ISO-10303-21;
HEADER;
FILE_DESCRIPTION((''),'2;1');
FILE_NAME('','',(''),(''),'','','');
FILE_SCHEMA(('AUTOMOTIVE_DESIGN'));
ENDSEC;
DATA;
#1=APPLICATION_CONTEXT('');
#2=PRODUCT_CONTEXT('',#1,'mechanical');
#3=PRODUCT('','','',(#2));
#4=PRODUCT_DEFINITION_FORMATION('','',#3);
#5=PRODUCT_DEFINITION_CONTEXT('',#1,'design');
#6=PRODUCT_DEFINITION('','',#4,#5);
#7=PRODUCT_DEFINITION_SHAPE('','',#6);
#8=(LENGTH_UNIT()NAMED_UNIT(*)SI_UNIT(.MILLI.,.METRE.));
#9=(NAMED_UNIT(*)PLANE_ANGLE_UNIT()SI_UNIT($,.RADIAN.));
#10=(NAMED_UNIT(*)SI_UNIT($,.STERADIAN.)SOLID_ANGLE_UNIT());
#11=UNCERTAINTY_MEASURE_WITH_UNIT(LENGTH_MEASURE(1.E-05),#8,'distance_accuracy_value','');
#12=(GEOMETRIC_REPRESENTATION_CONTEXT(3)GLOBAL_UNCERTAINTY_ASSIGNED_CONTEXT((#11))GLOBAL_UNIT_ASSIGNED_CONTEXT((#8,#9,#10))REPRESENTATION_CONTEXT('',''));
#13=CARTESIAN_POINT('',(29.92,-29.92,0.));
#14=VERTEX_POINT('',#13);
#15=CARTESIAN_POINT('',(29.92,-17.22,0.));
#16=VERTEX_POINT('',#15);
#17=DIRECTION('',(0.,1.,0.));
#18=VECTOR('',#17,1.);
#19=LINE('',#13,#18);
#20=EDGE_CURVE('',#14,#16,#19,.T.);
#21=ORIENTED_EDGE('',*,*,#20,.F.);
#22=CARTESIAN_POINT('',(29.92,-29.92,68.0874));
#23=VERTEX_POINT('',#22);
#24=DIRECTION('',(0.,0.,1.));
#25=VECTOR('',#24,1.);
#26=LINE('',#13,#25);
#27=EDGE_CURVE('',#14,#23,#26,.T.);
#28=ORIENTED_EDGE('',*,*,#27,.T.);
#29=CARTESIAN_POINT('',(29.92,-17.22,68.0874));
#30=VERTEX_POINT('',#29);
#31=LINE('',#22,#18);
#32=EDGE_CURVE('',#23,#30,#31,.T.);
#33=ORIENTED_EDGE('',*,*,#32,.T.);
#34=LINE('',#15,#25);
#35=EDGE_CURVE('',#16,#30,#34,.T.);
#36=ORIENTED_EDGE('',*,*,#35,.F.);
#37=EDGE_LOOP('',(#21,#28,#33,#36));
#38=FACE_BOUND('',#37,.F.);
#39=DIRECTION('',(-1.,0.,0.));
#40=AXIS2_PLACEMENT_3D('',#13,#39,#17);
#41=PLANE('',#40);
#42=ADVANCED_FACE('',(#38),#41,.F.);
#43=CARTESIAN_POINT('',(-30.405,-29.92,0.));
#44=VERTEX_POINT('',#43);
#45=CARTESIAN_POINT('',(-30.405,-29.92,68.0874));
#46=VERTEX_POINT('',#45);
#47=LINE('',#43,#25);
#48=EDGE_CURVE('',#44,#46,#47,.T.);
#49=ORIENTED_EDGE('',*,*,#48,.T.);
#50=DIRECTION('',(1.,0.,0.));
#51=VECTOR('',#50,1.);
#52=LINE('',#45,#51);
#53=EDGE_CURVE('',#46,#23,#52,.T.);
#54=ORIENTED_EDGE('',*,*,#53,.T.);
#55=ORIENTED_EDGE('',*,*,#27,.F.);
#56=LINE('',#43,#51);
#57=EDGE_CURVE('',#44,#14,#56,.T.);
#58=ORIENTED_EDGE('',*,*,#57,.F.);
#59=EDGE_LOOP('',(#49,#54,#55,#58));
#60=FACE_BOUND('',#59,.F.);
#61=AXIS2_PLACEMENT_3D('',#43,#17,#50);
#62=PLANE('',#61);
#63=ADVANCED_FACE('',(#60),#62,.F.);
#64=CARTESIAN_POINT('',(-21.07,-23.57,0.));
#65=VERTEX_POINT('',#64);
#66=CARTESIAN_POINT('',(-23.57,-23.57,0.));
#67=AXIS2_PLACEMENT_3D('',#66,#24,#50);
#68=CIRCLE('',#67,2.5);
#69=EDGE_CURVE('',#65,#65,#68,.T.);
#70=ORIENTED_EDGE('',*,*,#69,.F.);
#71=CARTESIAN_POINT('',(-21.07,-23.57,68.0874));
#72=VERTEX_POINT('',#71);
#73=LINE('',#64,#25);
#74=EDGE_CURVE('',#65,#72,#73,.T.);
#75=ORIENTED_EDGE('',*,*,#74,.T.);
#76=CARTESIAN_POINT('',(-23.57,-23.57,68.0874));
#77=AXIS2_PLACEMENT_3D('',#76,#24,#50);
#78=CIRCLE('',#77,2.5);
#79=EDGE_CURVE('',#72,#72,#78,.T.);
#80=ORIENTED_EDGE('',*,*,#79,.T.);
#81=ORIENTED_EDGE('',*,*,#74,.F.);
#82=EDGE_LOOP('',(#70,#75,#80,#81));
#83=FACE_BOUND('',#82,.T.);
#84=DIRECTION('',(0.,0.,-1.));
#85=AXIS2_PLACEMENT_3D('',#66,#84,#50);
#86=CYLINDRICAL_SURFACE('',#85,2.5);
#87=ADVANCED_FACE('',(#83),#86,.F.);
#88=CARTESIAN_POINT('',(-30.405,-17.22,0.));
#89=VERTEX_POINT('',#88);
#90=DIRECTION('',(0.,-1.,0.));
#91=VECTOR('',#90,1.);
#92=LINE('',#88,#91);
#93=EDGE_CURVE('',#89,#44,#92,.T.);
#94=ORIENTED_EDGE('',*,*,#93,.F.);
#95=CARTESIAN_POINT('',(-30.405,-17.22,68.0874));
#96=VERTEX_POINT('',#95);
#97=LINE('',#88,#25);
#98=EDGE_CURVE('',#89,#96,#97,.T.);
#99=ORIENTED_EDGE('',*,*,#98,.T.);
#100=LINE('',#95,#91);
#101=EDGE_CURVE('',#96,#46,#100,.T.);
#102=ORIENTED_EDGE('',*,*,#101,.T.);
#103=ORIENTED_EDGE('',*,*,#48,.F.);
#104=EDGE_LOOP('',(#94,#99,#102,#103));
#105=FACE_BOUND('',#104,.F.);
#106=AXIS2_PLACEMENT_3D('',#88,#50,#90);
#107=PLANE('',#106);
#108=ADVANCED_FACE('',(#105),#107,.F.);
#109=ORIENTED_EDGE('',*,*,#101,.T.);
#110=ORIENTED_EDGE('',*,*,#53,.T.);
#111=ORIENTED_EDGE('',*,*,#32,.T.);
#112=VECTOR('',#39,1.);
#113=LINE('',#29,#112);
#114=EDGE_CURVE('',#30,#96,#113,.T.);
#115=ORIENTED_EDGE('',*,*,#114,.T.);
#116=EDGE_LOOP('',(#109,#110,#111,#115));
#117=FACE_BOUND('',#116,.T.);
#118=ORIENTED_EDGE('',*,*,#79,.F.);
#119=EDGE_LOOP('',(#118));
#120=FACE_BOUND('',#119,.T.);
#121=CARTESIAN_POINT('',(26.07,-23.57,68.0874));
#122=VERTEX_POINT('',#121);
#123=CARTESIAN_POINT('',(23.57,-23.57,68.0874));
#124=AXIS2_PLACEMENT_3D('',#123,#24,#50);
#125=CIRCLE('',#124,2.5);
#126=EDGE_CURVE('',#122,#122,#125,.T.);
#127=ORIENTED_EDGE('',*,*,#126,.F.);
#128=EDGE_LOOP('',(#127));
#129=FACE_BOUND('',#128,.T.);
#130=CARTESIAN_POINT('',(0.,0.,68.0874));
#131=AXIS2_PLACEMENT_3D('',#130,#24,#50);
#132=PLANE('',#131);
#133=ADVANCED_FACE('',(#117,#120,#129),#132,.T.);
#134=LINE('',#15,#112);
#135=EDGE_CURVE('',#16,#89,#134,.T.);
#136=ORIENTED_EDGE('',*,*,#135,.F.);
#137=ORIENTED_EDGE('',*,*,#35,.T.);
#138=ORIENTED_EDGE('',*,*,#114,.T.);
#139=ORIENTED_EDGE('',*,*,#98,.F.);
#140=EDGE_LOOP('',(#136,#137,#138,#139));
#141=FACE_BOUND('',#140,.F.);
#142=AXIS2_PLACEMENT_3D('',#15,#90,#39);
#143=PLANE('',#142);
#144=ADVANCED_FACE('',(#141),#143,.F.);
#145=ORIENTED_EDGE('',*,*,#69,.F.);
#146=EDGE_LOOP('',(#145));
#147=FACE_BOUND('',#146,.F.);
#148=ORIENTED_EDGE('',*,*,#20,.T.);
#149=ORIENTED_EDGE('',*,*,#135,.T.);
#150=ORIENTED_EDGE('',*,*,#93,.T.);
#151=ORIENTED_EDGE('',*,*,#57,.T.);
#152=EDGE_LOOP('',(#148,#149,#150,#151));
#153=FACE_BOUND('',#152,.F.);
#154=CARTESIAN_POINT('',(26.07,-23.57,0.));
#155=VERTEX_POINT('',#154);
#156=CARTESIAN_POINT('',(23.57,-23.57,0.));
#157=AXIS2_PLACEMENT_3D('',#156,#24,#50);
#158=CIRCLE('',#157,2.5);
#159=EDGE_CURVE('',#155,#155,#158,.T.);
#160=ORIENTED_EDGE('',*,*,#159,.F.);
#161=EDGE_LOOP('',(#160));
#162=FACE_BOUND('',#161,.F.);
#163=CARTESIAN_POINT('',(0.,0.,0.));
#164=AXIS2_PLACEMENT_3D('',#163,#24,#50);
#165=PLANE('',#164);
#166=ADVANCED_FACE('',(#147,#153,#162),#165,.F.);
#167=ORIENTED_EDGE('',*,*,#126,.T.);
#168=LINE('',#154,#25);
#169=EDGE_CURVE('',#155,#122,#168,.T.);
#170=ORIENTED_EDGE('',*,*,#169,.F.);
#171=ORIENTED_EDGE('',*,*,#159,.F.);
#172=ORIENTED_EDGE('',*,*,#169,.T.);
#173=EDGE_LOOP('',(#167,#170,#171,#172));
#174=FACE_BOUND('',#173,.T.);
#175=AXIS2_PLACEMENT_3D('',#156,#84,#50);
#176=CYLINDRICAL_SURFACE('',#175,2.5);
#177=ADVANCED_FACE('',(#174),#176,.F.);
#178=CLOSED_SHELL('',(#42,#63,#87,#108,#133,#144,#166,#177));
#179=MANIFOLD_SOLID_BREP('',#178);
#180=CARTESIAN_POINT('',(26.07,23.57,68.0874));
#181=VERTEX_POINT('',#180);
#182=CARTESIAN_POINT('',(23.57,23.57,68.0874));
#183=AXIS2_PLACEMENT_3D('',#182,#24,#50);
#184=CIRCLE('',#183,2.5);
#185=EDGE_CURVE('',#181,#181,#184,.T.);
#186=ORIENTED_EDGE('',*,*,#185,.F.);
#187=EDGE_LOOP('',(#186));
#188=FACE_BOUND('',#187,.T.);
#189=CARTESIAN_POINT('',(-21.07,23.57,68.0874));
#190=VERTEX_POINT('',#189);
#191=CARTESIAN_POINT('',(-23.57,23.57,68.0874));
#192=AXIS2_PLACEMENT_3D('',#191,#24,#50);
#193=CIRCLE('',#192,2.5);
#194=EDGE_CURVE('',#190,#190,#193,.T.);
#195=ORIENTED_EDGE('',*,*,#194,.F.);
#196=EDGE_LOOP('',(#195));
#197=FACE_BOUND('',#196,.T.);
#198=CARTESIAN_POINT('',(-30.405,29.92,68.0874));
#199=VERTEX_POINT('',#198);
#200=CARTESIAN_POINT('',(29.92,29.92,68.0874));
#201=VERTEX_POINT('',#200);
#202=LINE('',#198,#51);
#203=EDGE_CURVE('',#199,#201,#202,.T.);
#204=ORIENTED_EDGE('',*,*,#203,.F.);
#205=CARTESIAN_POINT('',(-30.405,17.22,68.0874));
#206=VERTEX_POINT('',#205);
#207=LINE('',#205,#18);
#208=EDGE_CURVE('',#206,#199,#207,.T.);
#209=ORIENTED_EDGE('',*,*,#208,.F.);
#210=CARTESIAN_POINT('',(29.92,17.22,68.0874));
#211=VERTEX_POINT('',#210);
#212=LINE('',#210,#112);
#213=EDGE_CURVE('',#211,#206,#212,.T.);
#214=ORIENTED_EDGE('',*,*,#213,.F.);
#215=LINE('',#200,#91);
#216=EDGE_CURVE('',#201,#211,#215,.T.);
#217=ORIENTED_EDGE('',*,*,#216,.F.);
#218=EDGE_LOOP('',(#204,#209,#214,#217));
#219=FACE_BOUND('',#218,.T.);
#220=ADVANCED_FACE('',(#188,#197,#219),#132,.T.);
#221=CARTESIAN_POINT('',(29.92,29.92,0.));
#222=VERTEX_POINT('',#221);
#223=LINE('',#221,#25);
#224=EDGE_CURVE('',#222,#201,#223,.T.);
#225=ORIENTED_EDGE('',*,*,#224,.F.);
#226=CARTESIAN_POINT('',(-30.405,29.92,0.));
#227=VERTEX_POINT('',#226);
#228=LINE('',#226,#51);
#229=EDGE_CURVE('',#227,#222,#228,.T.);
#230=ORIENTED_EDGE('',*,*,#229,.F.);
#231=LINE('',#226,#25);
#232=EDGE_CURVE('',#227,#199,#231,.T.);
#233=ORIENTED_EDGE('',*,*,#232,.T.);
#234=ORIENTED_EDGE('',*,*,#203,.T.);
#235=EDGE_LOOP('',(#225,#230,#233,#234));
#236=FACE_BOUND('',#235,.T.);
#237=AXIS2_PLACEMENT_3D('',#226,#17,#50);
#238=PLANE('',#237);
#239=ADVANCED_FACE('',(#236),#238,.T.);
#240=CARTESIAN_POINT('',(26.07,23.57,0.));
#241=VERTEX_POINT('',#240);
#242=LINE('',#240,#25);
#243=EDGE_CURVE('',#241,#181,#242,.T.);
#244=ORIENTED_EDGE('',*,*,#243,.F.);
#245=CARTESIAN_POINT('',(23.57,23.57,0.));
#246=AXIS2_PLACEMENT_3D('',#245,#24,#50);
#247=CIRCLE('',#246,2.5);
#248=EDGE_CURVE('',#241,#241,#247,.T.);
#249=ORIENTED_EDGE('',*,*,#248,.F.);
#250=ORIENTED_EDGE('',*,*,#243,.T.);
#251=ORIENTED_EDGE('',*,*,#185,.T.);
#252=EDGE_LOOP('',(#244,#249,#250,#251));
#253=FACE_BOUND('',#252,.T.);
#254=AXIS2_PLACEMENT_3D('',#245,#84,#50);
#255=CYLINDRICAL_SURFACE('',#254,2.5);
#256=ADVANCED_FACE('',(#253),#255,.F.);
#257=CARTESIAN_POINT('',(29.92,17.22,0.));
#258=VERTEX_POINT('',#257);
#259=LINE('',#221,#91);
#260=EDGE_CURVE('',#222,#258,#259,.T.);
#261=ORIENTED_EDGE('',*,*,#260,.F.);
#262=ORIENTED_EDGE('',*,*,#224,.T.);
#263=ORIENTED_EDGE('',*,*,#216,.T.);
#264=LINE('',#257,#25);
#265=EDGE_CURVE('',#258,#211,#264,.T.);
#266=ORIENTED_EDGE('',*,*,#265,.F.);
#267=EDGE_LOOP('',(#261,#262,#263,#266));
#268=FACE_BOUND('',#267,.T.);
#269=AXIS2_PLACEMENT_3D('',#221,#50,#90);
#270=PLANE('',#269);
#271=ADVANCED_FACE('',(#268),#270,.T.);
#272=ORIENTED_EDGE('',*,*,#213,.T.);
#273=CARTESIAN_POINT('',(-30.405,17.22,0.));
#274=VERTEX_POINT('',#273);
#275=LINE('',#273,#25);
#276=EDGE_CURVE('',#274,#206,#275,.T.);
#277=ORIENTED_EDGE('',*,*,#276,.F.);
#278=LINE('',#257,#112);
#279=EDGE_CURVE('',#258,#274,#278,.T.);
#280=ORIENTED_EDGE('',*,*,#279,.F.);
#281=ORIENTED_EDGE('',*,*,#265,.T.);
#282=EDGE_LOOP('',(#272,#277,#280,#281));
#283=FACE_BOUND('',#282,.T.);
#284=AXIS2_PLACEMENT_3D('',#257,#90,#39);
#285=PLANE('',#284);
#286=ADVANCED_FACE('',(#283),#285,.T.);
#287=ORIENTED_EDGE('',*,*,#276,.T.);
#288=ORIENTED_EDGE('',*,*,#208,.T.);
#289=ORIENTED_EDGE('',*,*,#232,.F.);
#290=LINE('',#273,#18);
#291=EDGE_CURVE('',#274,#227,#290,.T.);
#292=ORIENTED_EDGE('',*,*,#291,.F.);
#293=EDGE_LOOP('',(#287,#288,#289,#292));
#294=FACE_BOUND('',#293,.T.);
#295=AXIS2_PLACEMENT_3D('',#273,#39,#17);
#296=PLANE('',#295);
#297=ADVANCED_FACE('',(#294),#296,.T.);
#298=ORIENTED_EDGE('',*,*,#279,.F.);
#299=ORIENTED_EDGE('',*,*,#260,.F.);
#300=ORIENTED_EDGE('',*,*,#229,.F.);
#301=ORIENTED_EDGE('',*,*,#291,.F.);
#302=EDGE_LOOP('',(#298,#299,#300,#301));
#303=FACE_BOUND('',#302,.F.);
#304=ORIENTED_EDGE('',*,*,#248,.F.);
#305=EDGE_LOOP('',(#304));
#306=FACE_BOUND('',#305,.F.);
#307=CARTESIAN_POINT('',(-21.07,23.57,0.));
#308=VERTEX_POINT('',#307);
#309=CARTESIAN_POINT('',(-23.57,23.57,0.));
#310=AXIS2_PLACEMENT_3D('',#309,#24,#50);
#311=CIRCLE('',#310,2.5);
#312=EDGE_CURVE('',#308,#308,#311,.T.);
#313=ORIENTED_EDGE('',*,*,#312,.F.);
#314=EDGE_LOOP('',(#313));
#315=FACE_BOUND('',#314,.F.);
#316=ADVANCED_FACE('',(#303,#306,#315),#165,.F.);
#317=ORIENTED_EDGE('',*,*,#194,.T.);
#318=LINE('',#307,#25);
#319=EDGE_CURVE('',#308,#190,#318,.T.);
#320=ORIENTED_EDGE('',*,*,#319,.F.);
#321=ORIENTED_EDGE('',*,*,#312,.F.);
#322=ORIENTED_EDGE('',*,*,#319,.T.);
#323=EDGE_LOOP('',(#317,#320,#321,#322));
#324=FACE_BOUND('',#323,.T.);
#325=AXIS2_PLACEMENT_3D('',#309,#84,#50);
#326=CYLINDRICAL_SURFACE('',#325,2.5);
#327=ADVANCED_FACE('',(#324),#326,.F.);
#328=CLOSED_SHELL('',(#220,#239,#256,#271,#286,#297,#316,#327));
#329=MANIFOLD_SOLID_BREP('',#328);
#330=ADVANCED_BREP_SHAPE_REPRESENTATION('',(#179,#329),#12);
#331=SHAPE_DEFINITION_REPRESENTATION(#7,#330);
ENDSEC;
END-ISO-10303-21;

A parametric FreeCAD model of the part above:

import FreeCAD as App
import Part
import Sketcher
Q = App.Units.Quantity


def add_polygon(sketch, points):
    """Adds a closed chain of lines whose ends are joined by coincident constraints."""
    first, n = sketch.GeometryCount, len(points)
    for a, b in zip(points, points[1:] + points[:1]):
        sketch.addGeometry(Part.LineSegment(App.Vector(*a, 0), App.Vector(*b, 0)), False)
    for i in range(n):
        sketch.addConstraint(Sketcher.Constraint("Coincident", first + i, 2, first + (i + 1) % n, 1))

doc = App.newDocument("Part")
body = doc.addObject("PartDesign::Body", "Body")
body.AllowCompound = True

# Sketch on XY plane
sketch1 = body.newObject("Sketcher::SketchObject", "Sketch")
sketch1.AttachmentSupport = (doc.getObject("XY_Plane"), [""])
sketch1.MapMode = "FlatFace"
add_polygon(sketch1, [(29.9, 29.9), (-30.4, 29.9), (-30.4, 17.2), (29.9, 17.2)])  # lines 0-3
sketch1.addGeometry(Part.Circle(App.Vector(-23.6, 23.6, 0), App.Vector(0, 0, 1), 2.5), False)  # 4
sketch1.addGeometry(Part.Circle(App.Vector(23.6, 23.6, 0), App.Vector(0, 0, 1), 2.5), False)  # 5
add_polygon(sketch1, [(-30.4, -17.2), (-30.4, -29.9), (29.9, -29.9), (29.9, -17.2)])  # lines 6-9
sketch1.addGeometry(Part.Circle(App.Vector(-23.6, -23.6, 0), App.Vector(0, 0, 1), 2.5), False)  # 10
sketch1.addGeometry(Part.Circle(App.Vector(23.6, -23.6, 0), App.Vector(0, 0, 1), 2.5), False)  # 11
sketch1.addConstraint(Sketcher.Constraint("Horizontal", 0))
sketch1.addConstraint(Sketcher.Constraint("Vertical", 1))
sketch1.addConstraint(Sketcher.Constraint("Horizontal", 2))
sketch1.addConstraint(Sketcher.Constraint("Vertical", 3))
sketch1.addConstraint(Sketcher.Constraint("Vertical", 6))
sketch1.addConstraint(Sketcher.Constraint("Horizontal", 7))
sketch1.addConstraint(Sketcher.Constraint("Vertical", 8))
sketch1.addConstraint(Sketcher.Constraint("Horizontal", 9))
sketch1.addConstraint(Sketcher.Constraint("Equal", 4, 5))
sketch1.addConstraint(Sketcher.Constraint("Equal", 5, 10))
sketch1.addConstraint(Sketcher.Constraint("Equal", 10, 11))
sketch1.addConstraint(Sketcher.Constraint("Symmetric", 5, 3, 10, 3, -1, 1))
sketch1.addConstraint(Sketcher.Constraint("Symmetric", 4, 3, 11, 3, -1, 1))
sketch1.addConstraint(Sketcher.Constraint("Symmetric", 4, 3, 5, 3, -2))
sketch1.addConstraint(Sketcher.Constraint("Symmetric", 0, 2, 6, 2, -1))
sketch1.addConstraint(Sketcher.Constraint("Symmetric", 2, 2, 8, 2, -1))
sketch1.addConstraint(Sketcher.Constraint("DistanceX", 0, 2, 0, 1, Q("2.375 in")))
sketch1.addConstraint(Sketcher.Constraint("DistanceY", 4, 3, 0, 2, Q("0.25 in")))
sketch1.addConstraint(Sketcher.Constraint("DistanceY", 1, 2, 4, 3, Q("0.25 in")))
sketch1.addConstraint(Sketcher.Constraint("DistanceX", 5, 3, 2, 2, Q("0.25 in")))
sketch1.addConstraint(Sketcher.Constraint("Diameter", 4, 5.0))
sketch1.addConstraint(Sketcher.Constraint("DistanceX", 4, 3, 5, 3, Q("1.8559 in")))
sketch1.addConstraint(Sketcher.Constraint("DistanceY", 10, 3, 4, 3, Q("1.8559 in")))
pad1 = body.newObject("PartDesign::Pad", "Pad")
pad1.Profile = sketch1
pad1.Length = Q("2.6806063 in")

doc.recompute()
